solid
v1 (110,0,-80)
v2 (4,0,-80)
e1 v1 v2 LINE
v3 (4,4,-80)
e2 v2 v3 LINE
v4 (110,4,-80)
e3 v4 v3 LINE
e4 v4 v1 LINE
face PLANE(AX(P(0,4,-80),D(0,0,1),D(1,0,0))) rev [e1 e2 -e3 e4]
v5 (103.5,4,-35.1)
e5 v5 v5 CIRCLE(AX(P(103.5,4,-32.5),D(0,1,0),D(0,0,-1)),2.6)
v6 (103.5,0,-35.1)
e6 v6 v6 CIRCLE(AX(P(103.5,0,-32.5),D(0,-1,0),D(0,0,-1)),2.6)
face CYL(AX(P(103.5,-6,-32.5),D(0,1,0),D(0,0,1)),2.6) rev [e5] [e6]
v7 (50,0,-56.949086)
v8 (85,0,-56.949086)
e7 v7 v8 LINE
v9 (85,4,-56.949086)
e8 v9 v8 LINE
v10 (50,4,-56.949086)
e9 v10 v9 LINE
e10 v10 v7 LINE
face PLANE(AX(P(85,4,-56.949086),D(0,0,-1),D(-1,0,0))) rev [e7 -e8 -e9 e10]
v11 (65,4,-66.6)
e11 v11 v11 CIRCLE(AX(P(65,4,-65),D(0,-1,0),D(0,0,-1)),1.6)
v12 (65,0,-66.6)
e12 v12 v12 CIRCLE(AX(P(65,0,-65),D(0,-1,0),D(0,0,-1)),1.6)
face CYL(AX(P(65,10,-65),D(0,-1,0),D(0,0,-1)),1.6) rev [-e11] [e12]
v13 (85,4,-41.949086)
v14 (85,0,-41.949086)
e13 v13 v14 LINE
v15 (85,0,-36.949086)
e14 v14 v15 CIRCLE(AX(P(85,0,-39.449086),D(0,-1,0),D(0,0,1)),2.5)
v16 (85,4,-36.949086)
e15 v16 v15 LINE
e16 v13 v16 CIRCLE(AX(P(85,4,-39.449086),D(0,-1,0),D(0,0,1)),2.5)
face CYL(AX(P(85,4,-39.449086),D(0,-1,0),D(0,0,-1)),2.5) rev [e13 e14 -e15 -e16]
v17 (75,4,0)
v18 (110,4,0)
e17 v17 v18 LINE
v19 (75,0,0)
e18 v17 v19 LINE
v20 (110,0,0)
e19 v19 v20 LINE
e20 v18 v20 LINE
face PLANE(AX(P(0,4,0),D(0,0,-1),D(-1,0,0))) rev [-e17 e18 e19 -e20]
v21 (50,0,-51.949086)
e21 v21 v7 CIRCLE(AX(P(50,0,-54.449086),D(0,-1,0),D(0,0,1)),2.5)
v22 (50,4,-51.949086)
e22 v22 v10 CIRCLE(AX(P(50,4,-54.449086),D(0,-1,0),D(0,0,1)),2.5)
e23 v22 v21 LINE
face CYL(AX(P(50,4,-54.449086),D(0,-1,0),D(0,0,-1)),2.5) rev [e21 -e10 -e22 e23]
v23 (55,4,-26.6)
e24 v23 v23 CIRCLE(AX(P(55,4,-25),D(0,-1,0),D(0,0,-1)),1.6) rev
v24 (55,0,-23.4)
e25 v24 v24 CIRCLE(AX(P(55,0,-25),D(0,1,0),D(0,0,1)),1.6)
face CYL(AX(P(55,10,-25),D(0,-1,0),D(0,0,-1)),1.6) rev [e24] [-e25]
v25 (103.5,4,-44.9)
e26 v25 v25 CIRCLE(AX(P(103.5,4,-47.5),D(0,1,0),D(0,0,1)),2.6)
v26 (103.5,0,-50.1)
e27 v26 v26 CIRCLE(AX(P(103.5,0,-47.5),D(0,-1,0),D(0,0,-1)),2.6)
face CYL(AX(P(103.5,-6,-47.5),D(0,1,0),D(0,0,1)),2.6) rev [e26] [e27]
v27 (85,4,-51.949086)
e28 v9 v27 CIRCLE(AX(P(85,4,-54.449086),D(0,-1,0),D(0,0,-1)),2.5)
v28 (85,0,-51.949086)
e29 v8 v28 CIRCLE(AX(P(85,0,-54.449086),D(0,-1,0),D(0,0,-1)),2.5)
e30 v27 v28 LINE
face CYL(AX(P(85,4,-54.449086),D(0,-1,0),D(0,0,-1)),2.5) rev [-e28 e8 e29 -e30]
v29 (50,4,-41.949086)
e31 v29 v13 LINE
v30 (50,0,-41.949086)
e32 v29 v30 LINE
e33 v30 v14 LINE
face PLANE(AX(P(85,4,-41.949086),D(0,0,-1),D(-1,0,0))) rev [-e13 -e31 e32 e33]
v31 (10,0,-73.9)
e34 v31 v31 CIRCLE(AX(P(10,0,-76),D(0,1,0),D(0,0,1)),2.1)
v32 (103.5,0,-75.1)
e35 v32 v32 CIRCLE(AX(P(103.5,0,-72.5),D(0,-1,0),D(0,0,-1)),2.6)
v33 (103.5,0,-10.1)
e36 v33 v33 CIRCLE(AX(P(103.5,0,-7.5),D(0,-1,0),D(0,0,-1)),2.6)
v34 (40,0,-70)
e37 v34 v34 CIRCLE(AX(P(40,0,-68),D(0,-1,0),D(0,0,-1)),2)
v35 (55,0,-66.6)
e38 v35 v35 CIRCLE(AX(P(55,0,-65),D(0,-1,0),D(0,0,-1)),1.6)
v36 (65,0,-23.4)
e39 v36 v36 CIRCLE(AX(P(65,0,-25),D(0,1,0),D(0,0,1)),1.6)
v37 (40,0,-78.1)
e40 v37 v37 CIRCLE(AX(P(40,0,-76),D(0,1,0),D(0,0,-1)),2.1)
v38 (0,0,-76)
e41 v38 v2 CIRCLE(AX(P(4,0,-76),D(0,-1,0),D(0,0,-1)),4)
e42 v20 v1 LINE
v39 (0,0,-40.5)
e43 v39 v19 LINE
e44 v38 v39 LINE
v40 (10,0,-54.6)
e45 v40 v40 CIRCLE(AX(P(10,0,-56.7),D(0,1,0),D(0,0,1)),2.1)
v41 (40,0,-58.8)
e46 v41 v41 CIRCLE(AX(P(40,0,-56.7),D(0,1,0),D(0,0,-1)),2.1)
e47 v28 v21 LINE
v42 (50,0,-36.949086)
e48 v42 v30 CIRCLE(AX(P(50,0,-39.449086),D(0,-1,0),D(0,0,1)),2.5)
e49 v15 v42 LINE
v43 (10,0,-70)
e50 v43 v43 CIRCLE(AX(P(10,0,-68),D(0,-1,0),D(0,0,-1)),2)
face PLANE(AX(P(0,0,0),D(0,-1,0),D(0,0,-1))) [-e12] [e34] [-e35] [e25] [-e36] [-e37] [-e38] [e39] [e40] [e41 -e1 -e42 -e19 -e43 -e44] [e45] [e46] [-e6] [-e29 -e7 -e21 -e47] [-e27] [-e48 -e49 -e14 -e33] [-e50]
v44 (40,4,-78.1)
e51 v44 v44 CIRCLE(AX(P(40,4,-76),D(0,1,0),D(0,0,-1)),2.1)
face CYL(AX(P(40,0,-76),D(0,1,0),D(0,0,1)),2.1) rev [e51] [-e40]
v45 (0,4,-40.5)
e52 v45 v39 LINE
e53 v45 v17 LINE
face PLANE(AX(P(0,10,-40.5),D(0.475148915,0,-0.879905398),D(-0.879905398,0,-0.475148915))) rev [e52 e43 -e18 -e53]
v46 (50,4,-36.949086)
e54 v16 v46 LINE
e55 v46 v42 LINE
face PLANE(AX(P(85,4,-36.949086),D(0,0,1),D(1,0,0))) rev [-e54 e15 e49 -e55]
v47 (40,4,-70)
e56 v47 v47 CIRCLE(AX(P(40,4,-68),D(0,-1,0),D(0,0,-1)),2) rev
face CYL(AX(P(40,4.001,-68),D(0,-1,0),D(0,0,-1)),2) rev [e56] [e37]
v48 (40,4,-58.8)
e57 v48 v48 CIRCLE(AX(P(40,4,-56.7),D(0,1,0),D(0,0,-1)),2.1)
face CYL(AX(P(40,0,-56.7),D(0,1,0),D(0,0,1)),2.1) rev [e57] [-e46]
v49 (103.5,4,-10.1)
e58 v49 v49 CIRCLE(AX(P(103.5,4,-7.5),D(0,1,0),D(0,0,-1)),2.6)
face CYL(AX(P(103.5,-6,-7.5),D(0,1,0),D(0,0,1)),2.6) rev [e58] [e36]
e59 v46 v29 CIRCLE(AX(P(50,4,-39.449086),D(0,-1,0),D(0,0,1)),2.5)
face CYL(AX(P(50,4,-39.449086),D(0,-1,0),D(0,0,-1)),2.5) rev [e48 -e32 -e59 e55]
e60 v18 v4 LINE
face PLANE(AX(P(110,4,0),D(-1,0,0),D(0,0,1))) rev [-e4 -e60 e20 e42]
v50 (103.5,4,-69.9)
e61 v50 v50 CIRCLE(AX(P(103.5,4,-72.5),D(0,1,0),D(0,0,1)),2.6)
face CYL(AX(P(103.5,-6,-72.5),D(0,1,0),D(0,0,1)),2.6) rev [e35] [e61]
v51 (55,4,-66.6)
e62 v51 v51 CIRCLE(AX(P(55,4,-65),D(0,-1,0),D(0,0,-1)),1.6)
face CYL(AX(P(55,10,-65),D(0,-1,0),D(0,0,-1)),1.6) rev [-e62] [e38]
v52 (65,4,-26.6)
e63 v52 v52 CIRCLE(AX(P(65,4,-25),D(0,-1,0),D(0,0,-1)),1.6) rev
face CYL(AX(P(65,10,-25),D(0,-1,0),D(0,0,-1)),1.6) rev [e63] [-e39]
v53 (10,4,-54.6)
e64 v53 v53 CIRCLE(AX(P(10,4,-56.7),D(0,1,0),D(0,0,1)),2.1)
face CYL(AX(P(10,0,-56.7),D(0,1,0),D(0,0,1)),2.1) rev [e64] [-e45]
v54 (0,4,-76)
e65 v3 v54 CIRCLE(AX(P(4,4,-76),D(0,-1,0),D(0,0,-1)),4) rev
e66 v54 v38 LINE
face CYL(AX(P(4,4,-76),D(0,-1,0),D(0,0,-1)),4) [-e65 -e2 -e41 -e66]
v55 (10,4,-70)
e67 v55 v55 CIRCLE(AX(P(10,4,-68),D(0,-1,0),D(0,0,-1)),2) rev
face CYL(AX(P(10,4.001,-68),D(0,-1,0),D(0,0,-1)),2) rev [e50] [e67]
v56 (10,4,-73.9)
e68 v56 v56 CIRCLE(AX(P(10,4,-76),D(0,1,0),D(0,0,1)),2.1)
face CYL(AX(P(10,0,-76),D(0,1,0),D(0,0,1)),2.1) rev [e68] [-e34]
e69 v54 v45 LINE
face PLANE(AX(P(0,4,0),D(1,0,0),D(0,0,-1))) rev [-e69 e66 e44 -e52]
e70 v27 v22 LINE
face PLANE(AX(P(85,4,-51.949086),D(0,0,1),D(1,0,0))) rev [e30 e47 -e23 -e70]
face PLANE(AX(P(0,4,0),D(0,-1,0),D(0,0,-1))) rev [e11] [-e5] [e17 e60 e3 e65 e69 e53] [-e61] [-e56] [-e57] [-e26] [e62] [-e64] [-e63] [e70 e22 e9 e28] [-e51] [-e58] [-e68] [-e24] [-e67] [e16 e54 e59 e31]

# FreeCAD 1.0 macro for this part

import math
import FreeCAD as App
import Part
import Sketcher
from FreeCAD import Vector
Q = App.Units.Quantity


def edges_at(feature, points):
    """Names of the edges that pass closest to the given points."""
    edges = feature.Shape.Edges
    near = lambda p: min(range(len(edges)), key=lambda i: edges[i].distToShape(Part.Vertex(*p))[0])
    return sorted({f"Edge{near(p) + 1}" for p in points})


def add_polygon(sketch, points):
    """Adds a closed chain of lines whose ends are joined by coincident constraints."""
    first, n = sketch.GeometryCount, len(points)
    for a, b in zip(points, points[1:] + points[:1]):
        sketch.addGeometry(Part.LineSegment(App.Vector(*a, 0), App.Vector(*b, 0)), False)
    for i in range(n):
        sketch.addConstraint(Sketcher.Constraint("Coincident", first + i, 2, first + (i + 1) % n, 1))

doc = App.newDocument("Part")
body = doc.addObject("PartDesign::Body", "Body")

# Sketch on XZ plane
sketch1 = doc.addObject("Sketcher::SketchObject", "Sketch")
body.addObject(sketch1)
sketch1.AttachmentSupport = (doc.XZ_Plane, [""])
sketch1.MapMode = "FlatFace"
add_polygon(sketch1, [(0, -80), (0, 0), (110, 0), (110, -80)])  # lines 0-3
sketch1.addConstraint([
    Sketcher.Constraint("Vertical", 0),
    Sketcher.Constraint("Horizontal", 1),
    Sketcher.Constraint("Vertical", 2),
    Sketcher.Constraint("Horizontal", 3),
    Sketcher.Constraint("Coincident", 0, 2, -1, 1),
    Sketcher.Constraint("DistanceX", 1, 1, 1, 2, Q("110 mm")),
    Sketcher.Constraint("DistanceY", 0, 1, 0, 2, Q("80 mm")),
])
pad1 = doc.addObject("PartDesign::Pad", "Pad")
body.addObject(pad1)
pad1.Profile = sketch1
pad1.Length = 4
pad1.Reversed = True

# Sketch on XZ plane
sketch2 = doc.addObject("Sketcher::SketchObject", "Sketch001")
body.addObject(sketch2)
sketch2.AttachmentSupport = (doc.XZ_Plane, [""])
sketch2.MapMode = "FlatFace"
sketch2.AttachmentOffset = App.Placement(Vector(0, 0, -4), App.Rotation())
sketch2.addGeometry([
    Part.Circle(Vector(10, -56.7, 0), Vector(0, 0, 1), 2.1),
    Part.Circle(Vector(40, -56.7, 0), Vector(0, 0, 1), 2.1),
    Part.Circle(Vector(10, -76, 0), Vector(0, 0, 1), 2.1),
    Part.Circle(Vector(40, -76, 0), Vector(0, 0, 1), 2.1),
], False)
sketch2.addConstraint([
    Sketcher.Constraint("Equal", 0, 1),
    Sketcher.Constraint("Equal", 1, 2),
    Sketcher.Constraint("Equal", 2, 3),
    Sketcher.Constraint("Horizontal", 0, 3, 1, 3),
    Sketcher.Constraint("Horizontal", 2, 3, 3, 3),
    Sketcher.Constraint("Vertical", 0, 3, 2, 3),
    Sketcher.Constraint("Vertical", 1, 3, 3, 3),
    Sketcher.Constraint("Diameter", 0, Q("4.2 mm")),
    Sketcher.Constraint("DistanceX", -1, 1, 0, 3, Q("10 mm")),
    Sketcher.Constraint("DistanceX", -1, 1, 1, 3, Q("40 mm")),
    Sketcher.Constraint("DistanceY", 2, 3, -1, 1, Q("76 mm")),
    Sketcher.Constraint("DistanceY", 0, 3, -1, 1, Q("56.7 mm")),
])
pocket1 = doc.addObject("PartDesign::Pocket", "Pocket")
body.addObject(pocket1)
pocket1.Profile = sketch2
pocket1.Length = 4
pocket1.Reversed = True
doc.recompute()

fillet = doc.addObject("PartDesign::Fillet", "Fillet")
body.addObject(fillet)
fillet.Base = (pocket1, edges_at(pocket1, [(0, 2, -80)]))
fillet.Radius = 4
doc.recompute()

fillet2 = doc.addObject("PartDesign::Fillet", "Fillet001")
body.addObject(fillet2)
fillet2.Base = (fillet, edges_at(fillet, [(0, 2, 0)]))
fillet2.Radius = 5

# Sketch on XZ plane
sketch3 = doc.addObject("Sketcher::SketchObject", "Sketch002")
body.addObject(sketch3)
sketch3.AttachmentSupport = (doc.XZ_Plane, [""])
sketch3.MapMode = "FlatFace"
sketch3.AttachmentOffset = App.Placement(Vector(0, 0, -4), App.Rotation())
sketch3.addGeometry([
    Part.Circle(Vector(103.5, -47.5, 0), Vector(0, 0, 1), 2.6),
    Part.Circle(Vector(103.5, -72.5, 0), Vector(0, 0, 1), 2.6),
    Part.Circle(Vector(103.5, -7.5, 0), Vector(0, 0, 1), 2.6),
    Part.Circle(Vector(103.5, -32.5, 0), Vector(0, 0, 1), 2.6),
], False)
sketch3.addConstraint([
    Sketcher.Constraint("Equal", 0, 1),
    Sketcher.Constraint("Equal", 1, 2),
    Sketcher.Constraint("Equal", 2, 3),
    Sketcher.Constraint("Vertical", 0, 3, 1, 3),
    Sketcher.Constraint("Vertical", 1, 3, 2, 3),
    Sketcher.Constraint("Vertical", 2, 3, 3, 3),
    Sketcher.Constraint("Diameter", 0, Q("5.2 mm")),
    Sketcher.Constraint("DistanceY", 1, 3, 0, 3, Q("25 mm")),
    Sketcher.Constraint("DistanceY", 0, 3, 2, 3, Q("40 mm")),
    Sketcher.Constraint("DistanceY", 0, 3, 3, 3, Q("15 mm")),
    Sketcher.Constraint("DistanceX", -1, 1, 0, 3, Q("103.5 mm")),
    Sketcher.Constraint("DistanceY", 0, 3, -1, 1, Q("47.5 mm")),
])
pocket2 = doc.addObject("PartDesign::Pocket", "Pocket001")
body.addObject(pocket2)
pocket2.Profile = sketch3
pocket2.Length = 10
pocket2.Reversed = True

# Sketch on XZ plane
sketch4 = doc.addObject("Sketcher::SketchObject", "Sketch003")
body.addObject(sketch4)
sketch4.AttachmentSupport = (doc.XZ_Plane, [""])
sketch4.MapMode = "FlatFace"
sketch4.addGeometry([
    Part.Circle(Vector(55, -65, 0), Vector(0, 0, 1), 1.6),
    Part.Circle(Vector(65, -65, 0), Vector(0, 0, 1), 1.6),
], False)
sketch4.addConstraint([
    Sketcher.Constraint("Equal", 0, 1),
    Sketcher.Constraint("Horizontal", 0, 3, 1, 3),
    Sketcher.Constraint("Diameter", 0, Q("3.2 mm")),
    Sketcher.Constraint("DistanceX", -1, 1, 0, 3, Q("55 mm")),
    Sketcher.Constraint("DistanceY", 0, 3, -1, 1, Q("65 mm")),
    Sketcher.Constraint("DistanceX", -1, 1, 1, 3, Q("65 mm")),
])
pocket3 = doc.addObject("PartDesign::Pocket", "Pocket002")
body.addObject(pocket3)
pocket3.Profile = sketch4
pocket3.Length = 10

# Sketch on XZ plane
sketch5 = doc.addObject("Sketcher::SketchObject", "Sketch004")
body.addObject(sketch5)
sketch5.AttachmentSupport = (doc.XZ_Plane, [""])
sketch5.MapMode = "FlatFace"
add_polygon(sketch5, [(0, -40), (75, 0), (0, 0)])  # lines 0-2
sketch5.addConstraint([
    Sketcher.Constraint("Horizontal", 1),
    Sketcher.Constraint("Vertical", 2),
    Sketcher.Constraint("Coincident", 1, 2, -1, 1),
    Sketcher.Constraint("DistanceX", 1, 2, 1, 1, Q("75 mm")),
    Sketcher.Constraint("DistanceY", 2, 2, 2, 1, Q("40.5 mm")),
])
pocket4 = doc.addObject("PartDesign::Pocket", "Pocket003")
body.addObject(pocket4)
pocket4.Profile = sketch5
pocket4.Length = 10

# Sketch on XZ plane
sketch6 = doc.addObject("Sketcher::SketchObject", "Sketch005")
body.addObject(sketch6)
sketch6.AttachmentSupport = (doc.XZ_Plane, [""])
sketch6.MapMode = "FlatFace"
sketch6.addGeometry(Part.Circle(Vector(10, -68, 0), Vector(0, 0, 1), 2), False)
sketch6.addConstraint([
    Sketcher.Constraint("Diameter", 0, Q("4 mm")),
    Sketcher.Constraint("DistanceX", -1, 1, 0, 3, Q("10 mm")),
    Sketcher.Constraint("DistanceY", 0, 3, -1, 1, Q("68 mm")),
])
pocket5 = doc.addObject("PartDesign::Pocket", "Pocket004")
body.addObject(pocket5)
pocket5.Profile = sketch6
pocket5.Type = "UpToFirst"

# Sketch on XZ plane
sketch7 = doc.addObject("Sketcher::SketchObject", "Sketch006")
body.addObject(sketch7)
sketch7.AttachmentSupport = (doc.XZ_Plane, [""])
sketch7.MapMode = "FlatFace"
sketch7.addGeometry(Part.Circle(Vector(40, -68, 0), Vector(0, 0, 1), 2), False)
sketch7.addConstraint([
    Sketcher.Constraint("Diameter", 0, Q("4 mm")),
    Sketcher.Constraint("DistanceX", -1, 1, 0, 3, Q("40 mm")),
    Sketcher.Constraint("DistanceY", 0, 3, -1, 1, Q("68 mm")),
])
pocket6 = doc.addObject("PartDesign::Pocket", "Pocket005")
body.addObject(pocket6)
pocket6.Profile = sketch7
pocket6.Type = "UpToFirst"
doc.recompute()

datumplane = doc.addObject("PartDesign::Plane", "DatumPlane")
body.addObject(datumplane)
datumplane.AttachmentSupport = (doc.XY_Plane, [""])
datumplane.MapMode = "FlatFace"
datumplane.AttachmentOffset = App.Placement(Vector(0, 0, -45), App.Rotation())
mirrored = doc.addObject("PartDesign::Mirrored", "Mirrored")
body.addObject(mirrored)
mirrored.Originals = [pocket3]
mirrored.MirrorPlane = (datumplane, [""])
body.Tip = mirrored

# Sketch on XZ plane
sketch8 = doc.addObject("Sketcher::SketchObject", "Sketch007")
body.addObject(sketch8)
sketch8.AttachmentSupport = (doc.XZ_Plane, [""])
sketch8.MapMode = "FlatFace"
sketch8.addGeometry([
    Part.LineSegment(Vector(85, -36.9, 0), Vector(50, -36.9, 0)),  # 0
    Part.ArcOfCircle(Part.Circle(Vector(50, -39.4, 0), Vector(0, 0, 1), 2.5), math.radians(90), math.radians(270)),  # 1
    Part.LineSegment(Vector(50, -41.9, 0), Vector(85, -41.9, 0)),  # 2
    Part.ArcOfCircle(Part.Circle(Vector(85, -39.4, 0), Vector(0, 0, 1), 2.5), math.radians(-90), math.radians(90)),  # 3
    Part.LineSegment(Vector(85, -51.9, 0), Vector(50, -51.9, 0)),  # 4
    Part.ArcOfCircle(Part.Circle(Vector(50, -54.4, 0), Vector(0, 0, 1), 2.5), math.radians(90), math.radians(270)),  # 5
    Part.LineSegment(Vector(50, -56.9, 0), Vector(85, -56.9, 0)),  # 6
    Part.ArcOfCircle(Part.Circle(Vector(85, -54.4, 0), Vector(0, 0, 1), 2.5), math.radians(-90), math.radians(90)),  # 7
], False)
sketch8.addConstraint([
    Sketcher.Constraint("Tangent", 0, 2, 1, 1),
    Sketcher.Constraint("Tangent", 1, 2, 2, 1),
    Sketcher.Constraint("Tangent", 2, 2, 3, 1),
    Sketcher.Constraint("Tangent", 3, 2, 0, 1),
    Sketcher.Constraint("Tangent", 4, 2, 5, 1),
    Sketcher.Constraint("Tangent", 5, 2, 6, 1),
    Sketcher.Constraint("Tangent", 6, 2, 7, 1),
    Sketcher.Constraint("Tangent", 7, 2, 4, 1),
    Sketcher.Constraint("Horizontal", 0),
    Sketcher.Constraint("Horizontal", 2),
    Sketcher.Constraint("Horizontal", 4),
    Sketcher.Constraint("Horizontal", 6),
    Sketcher.Constraint("Equal", 3, 5),
    Sketcher.Constraint("Vertical", 1, 3, 5, 3),
    Sketcher.Constraint("Vertical", 3, 3, 7, 3),
    Sketcher.Constraint("Radius", 1, Q("2.5 mm")),
    Sketcher.Constraint("DistanceX", 0, 2, 0, 1, Q("35 mm")),
    Sketcher.Constraint("DistanceX", -1, 1, 1, 3, Q("50 mm")),
    Sketcher.Constraint("DistanceY", 5, 3, 1, 3, Q("15 mm")),
    Sketcher.Constraint("DistanceY", 1, 3, -1, 1, Q("39.449086 mm")),
])
pocket7 = doc.addObject("PartDesign::Pocket", "Pocket006")
body.addObject(pocket7)
pocket7.Profile = sketch8
pocket7.Type = "ThroughAll"

doc.recompute()
